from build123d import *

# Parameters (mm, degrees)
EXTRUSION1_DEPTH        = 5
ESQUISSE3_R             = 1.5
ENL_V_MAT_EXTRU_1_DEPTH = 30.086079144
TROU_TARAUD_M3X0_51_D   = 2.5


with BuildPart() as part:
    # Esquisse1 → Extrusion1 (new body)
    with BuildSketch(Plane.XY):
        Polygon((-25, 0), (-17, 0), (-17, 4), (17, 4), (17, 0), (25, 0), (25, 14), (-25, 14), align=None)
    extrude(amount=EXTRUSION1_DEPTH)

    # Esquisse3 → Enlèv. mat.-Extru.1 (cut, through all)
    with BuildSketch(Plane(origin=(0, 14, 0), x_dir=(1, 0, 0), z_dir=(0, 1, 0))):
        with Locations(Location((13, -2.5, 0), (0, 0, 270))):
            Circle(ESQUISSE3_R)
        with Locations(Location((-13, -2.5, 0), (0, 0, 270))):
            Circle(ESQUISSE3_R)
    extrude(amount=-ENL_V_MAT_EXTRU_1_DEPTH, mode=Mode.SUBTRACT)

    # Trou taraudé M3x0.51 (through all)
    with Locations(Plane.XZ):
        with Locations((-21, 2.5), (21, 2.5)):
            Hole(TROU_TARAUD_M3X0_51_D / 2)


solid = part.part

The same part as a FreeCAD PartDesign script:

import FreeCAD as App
import Part
import Sketcher

V = App.Vector


def add_polygon(sketch, points):
    """Adds a closed chain of lines whose ends are joined by coincident constraints."""
    first, n = sketch.GeometryCount, len(points)
    for a, b in zip(points, points[1:] + points[:1]):
        sketch.addGeometry(Part.LineSegment(App.Vector(*a, 0), App.Vector(*b, 0)), False)
    for i in range(n):
        sketch.addConstraint(Sketcher.Constraint("Coincident", first + i, 2, first + (i + 1) % n, 1))

doc = App.newDocument("Part")
params = doc.addObject("Spreadsheet::Sheet", "Params")
for row, (alias, value) in enumerate([
    ("sketch1_width", "8 mm"),
    ("sketch1_width2", "34 mm"),
    ("sketch1_height", "4 mm"),
    ("sketch1_height2", "14 mm"),
    ("pad1_length", "5 mm"),
    ("sketch2_diameter", "3 mm"),
    ("sketch3_diameter", "2.5 mm"),
    ("hole_diameter", "2.5 mm"),
], start=1):
    params.set(f"A{row}", alias)
    params.set(f"B{row}", "=" + value)
    params.setAlias(f"B{row}", alias)

body = doc.addObject("PartDesign::Body", "Body")

sketch1 = doc.addObject("Sketcher::SketchObject", "Sketch")
body.addObject(sketch1)
sketch1.AttachmentSupport = (doc.XY_Plane, [""])
sketch1.MapMode = "FlatFace"
add_polygon(sketch1, [(-25, 0), (-17, 0), (-17, 4), (17, 4), (17, 0), (25, 0), (25, 14), (-25, 14)])
sketch1.addConstraint(Sketcher.Constraint("Horizontal", 0))
sketch1.addConstraint(Sketcher.Constraint("Vertical", 1))
sketch1.addConstraint(Sketcher.Constraint("Horizontal", 2))
sketch1.addConstraint(Sketcher.Constraint("Vertical", 3))
sketch1.addConstraint(Sketcher.Constraint("Horizontal", 4))
sketch1.addConstraint(Sketcher.Constraint("Vertical", 5))
sketch1.addConstraint(Sketcher.Constraint("Horizontal", 6))
sketch1.addConstraint(Sketcher.Constraint("Vertical", 7))
sketch1.addConstraint(Sketcher.Constraint("Symmetric", 0, 2, 3, 2, -1, 1))
sketch1.addConstraint(Sketcher.Constraint("Symmetric", 4, 2, 7, 2, -2))
sketch1.addConstraint(Sketcher.Constraint("DistanceX", 0, 1, 0, 2, 8.0))
sketch1.addConstraint(Sketcher.Constraint("DistanceX", 2, 1, 2, 2, 34.0))
sketch1.addConstraint(Sketcher.Constraint("DistanceY", 1, 1, 1, 2, 4.0))
sketch1.addConstraint(Sketcher.Constraint("DistanceY", 5, 1, 5, 2, 14.0))
sketch1.setExpression("Constraints[18]", "Params.sketch1_width")
sketch1.setExpression("Constraints[19]", "Params.sketch1_width2")
sketch1.setExpression("Constraints[20]", "Params.sketch1_height")
sketch1.setExpression("Constraints[21]", "Params.sketch1_height2")
pad1 = doc.addObject("PartDesign::Pad", "Pad")
body.addObject(pad1)
pad1.Profile = sketch1
pad1.setExpression("Length", "Params.pad1_length")

sketch2 = doc.addObject("Sketcher::SketchObject", "Sketch001")
body.addObject(sketch2)
sketch2.AttachmentSupport = (doc.XZ_Plane, [""])
sketch2.MapMode = "FlatFace"
sketch2.AttachmentOffset = App.Placement(V(0, 0, -14), App.Rotation())
sketch2.addGeometry(Part.Circle(V(13, 2.5, 0), V(0, 0, 1), 1.5), False)
sketch2.addGeometry(Part.Circle(V(-13, 2.5, 0), V(0, 0, 1), 1.5), False)
sketch2.addConstraint(Sketcher.Constraint("Equal", 0, 1))
sketch2.addConstraint(Sketcher.Constraint("Symmetric", 0, 3, 1, 3, -2))
sketch2.addConstraint(Sketcher.Constraint("Diameter", 0, 3.0))
sketch2.addConstraint(Sketcher.Constraint("DistanceX", -1, 1, 0, 3, 13.0))
sketch2.addConstraint(Sketcher.Constraint("DistanceY", -1, 1, 0, 3, 2.5))
sketch2.setExpression("Constraints[2]", "Params.sketch2_diameter")
pocket1 = doc.addObject("PartDesign::Pocket", "Pocket")
body.addObject(pocket1)
pocket1.Profile = sketch2
pocket1.Type = "ThroughAll"
pocket1.Reversed = True

sketch3 = doc.addObject("Sketcher::SketchObject", "Sketch002")
body.addObject(sketch3)
sketch3.AttachmentSupport = (doc.XZ_Plane, [""])
sketch3.MapMode = "FlatFace"
sketch3.addGeometry(Part.Circle(V(-21, 2.5, 0), V(0, 0, 1), 1.2), False)
sketch3.addGeometry(Part.Circle(V(21, 2.5, 0), V(0, 0, 1), 1.2), False)
sketch3.addConstraint(Sketcher.Constraint("Equal", 0, 1))
sketch3.addConstraint(Sketcher.Constraint("Symmetric", 0, 3, 1, 3, -2))
sketch3.addConstraint(Sketcher.Constraint("Diameter", 0, 2.5))
sketch3.addConstraint(Sketcher.Constraint("DistanceX", 0, 3, -1, 1, 21.0))
sketch3.addConstraint(Sketcher.Constraint("DistanceY", -1, 1, 0, 3, 2.5))
sketch3.setExpression("Constraints[2]", "Params.sketch3_diameter")
doc.recompute()
hole = doc.addObject("PartDesign::Hole", "Hole")
body.addObject(hole)
hole.Profile = sketch3
hole.ThreadType = "None"
hole.setExpression("Diameter", "Params.hole_diameter")
hole.DepthType = "ThroughAll"

doc.recompute()
